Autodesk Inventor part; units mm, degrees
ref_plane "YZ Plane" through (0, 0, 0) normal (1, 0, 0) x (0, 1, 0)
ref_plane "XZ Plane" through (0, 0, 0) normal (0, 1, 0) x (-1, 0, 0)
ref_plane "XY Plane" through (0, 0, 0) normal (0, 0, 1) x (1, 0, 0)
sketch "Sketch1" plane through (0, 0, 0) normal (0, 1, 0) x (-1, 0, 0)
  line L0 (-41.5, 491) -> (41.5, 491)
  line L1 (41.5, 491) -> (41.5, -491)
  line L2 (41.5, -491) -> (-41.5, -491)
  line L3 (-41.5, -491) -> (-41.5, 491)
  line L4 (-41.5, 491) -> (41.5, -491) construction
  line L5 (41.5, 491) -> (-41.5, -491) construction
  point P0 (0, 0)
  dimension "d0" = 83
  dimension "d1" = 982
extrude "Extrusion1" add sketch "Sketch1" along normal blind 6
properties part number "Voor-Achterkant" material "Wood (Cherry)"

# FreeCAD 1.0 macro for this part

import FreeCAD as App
import Part
import Sketcher
from FreeCAD import Vector
Q = App.Units.Quantity

doc = App.newDocument("Part")
body = doc.addObject("PartDesign::Body", "Body")

# Sketch on XZ plane
sketch1 = doc.addObject("Sketcher::SketchObject", "Sketch")
body.addObject(sketch1)
sketch1.AttachmentSupport = (doc.XZ_Plane, [""])
sketch1.MapMode = "FlatFace"
sketch1.addGeometry([
    Part.LineSegment(Vector(-42, 491, 0), Vector(42, 491, 0)),
    Part.LineSegment(Vector(42, 491, 0), Vector(42, -491, 0)),
    Part.LineSegment(Vector(42, -491, 0), Vector(-42, -491, 0)),
    Part.LineSegment(Vector(-42, -491, 0), Vector(-42, 491, 0)),
], False)
sketch1.addConstraint([
    Sketcher.Constraint("Coincident", 0, 2, 1, 1),
    Sketcher.Constraint("Coincident", 1, 2, 2, 1),
    Sketcher.Constraint("Coincident", 2, 2, 3, 1),
    Sketcher.Constraint("Coincident", 3, 2, 0, 1),
    Sketcher.Constraint("Horizontal", 0),
    Sketcher.Constraint("Vertical", 1),
    Sketcher.Constraint("Horizontal", 2),
    Sketcher.Constraint("Vertical", 3),
    Sketcher.Constraint("Symmetric", 0, 2, 2, 2, -1, 1),
    Sketcher.Constraint("DistanceX", 0, 1, 0, 2, Q("83 mm")),
    Sketcher.Constraint("DistanceY", 1, 2, 1, 1, Q("982 mm")),
])
pad1 = doc.addObject("PartDesign::Pad", "Pad")
body.addObject(pad1)
pad1.Profile = sketch1
pad1.Length = 6
pad1.Reversed = True

doc.recompute()
